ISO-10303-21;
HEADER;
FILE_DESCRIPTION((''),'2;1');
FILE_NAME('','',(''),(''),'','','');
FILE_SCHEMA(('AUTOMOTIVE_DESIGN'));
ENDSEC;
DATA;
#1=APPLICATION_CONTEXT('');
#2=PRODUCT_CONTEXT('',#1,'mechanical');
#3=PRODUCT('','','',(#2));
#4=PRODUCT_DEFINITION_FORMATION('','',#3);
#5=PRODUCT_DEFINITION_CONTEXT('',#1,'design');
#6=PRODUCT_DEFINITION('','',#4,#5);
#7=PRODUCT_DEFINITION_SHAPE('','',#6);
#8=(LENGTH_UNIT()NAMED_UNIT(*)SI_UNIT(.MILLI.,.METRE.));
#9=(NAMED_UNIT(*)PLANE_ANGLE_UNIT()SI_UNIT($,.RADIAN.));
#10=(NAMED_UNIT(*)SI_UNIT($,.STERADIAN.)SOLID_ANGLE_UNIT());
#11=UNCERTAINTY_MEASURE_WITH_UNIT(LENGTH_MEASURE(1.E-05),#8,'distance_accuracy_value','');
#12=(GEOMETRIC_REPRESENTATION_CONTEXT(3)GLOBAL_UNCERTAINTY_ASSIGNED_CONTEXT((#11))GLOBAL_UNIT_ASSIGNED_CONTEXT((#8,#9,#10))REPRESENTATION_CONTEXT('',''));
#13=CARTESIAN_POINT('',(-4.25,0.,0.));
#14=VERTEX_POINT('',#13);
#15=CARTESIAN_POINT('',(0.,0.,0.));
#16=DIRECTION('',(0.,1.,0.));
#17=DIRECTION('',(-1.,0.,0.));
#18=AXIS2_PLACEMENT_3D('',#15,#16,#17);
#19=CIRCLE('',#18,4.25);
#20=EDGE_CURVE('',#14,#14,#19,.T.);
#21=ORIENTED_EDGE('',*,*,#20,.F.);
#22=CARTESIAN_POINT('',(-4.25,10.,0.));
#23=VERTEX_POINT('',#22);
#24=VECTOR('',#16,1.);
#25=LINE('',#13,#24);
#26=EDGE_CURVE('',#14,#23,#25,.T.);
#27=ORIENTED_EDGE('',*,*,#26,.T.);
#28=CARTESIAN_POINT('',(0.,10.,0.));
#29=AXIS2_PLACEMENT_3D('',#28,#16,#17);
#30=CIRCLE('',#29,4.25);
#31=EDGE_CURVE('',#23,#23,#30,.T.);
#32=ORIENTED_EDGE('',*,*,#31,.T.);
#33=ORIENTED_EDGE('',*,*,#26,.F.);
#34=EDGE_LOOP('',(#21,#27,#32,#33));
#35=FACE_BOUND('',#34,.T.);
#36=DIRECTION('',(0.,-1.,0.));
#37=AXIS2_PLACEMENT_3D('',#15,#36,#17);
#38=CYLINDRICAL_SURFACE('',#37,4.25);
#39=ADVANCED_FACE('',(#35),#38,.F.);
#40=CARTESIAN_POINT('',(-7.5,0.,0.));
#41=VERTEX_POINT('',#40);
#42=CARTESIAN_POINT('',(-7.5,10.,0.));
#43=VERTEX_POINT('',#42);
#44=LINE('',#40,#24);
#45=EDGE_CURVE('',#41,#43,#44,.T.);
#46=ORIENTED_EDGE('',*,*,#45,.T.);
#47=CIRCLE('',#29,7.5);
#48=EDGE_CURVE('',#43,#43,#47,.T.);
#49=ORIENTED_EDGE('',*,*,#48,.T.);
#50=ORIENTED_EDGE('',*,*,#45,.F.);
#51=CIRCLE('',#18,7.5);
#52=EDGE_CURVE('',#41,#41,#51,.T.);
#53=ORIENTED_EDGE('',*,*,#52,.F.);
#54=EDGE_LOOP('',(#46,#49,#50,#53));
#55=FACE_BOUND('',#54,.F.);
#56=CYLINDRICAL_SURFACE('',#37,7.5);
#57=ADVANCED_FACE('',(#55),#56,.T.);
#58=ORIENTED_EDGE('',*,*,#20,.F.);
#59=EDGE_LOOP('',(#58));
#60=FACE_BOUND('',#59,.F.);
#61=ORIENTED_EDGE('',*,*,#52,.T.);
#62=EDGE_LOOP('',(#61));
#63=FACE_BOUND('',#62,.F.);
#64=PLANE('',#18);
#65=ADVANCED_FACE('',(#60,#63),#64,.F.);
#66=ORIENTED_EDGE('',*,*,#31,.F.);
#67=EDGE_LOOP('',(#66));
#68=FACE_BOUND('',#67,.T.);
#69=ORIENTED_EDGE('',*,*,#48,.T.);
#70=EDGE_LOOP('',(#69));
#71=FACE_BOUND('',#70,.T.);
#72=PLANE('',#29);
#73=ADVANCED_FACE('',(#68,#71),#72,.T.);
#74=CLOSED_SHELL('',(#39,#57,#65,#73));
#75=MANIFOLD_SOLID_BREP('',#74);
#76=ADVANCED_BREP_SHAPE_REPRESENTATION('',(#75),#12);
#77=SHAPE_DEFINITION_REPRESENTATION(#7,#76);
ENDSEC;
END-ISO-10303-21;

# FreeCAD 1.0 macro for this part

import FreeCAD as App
import Part
import Sketcher
from FreeCAD import Vector

doc = App.newDocument("Part")
body = doc.addObject("PartDesign::Body", "Body")

sketch1 = body.newObject("Sketcher::SketchObject", "Sketch")
sketch1.AttachmentSupport = (doc.getObject("XZ_Plane"), [""])
sketch1.MapMode = "FlatFace"
sketch1.addGeometry(Part.Circle(Vector(0, 0, 0), Vector(0, 0, 1), 7.5), False)
sketch1.addGeometry(Part.Circle(Vector(0, 0, 0), Vector(0, 0, 1), 4.2), False)
sketch1.addConstraint(Sketcher.Constraint("Coincident", 0, 3, -1, 1))
sketch1.addConstraint(Sketcher.Constraint("Coincident", 1, 3, -1, 1))
sketch1.addConstraint(Sketcher.Constraint("Diameter", 0, 15.0))
sketch1.addConstraint(Sketcher.Constraint("Diameter", 1, 8.5))
pad1 = body.newObject("PartDesign::Pad", "Pad")
pad1.Profile = sketch1
pad1.Length = 10
pad1.Reversed = True

doc.recompute()
